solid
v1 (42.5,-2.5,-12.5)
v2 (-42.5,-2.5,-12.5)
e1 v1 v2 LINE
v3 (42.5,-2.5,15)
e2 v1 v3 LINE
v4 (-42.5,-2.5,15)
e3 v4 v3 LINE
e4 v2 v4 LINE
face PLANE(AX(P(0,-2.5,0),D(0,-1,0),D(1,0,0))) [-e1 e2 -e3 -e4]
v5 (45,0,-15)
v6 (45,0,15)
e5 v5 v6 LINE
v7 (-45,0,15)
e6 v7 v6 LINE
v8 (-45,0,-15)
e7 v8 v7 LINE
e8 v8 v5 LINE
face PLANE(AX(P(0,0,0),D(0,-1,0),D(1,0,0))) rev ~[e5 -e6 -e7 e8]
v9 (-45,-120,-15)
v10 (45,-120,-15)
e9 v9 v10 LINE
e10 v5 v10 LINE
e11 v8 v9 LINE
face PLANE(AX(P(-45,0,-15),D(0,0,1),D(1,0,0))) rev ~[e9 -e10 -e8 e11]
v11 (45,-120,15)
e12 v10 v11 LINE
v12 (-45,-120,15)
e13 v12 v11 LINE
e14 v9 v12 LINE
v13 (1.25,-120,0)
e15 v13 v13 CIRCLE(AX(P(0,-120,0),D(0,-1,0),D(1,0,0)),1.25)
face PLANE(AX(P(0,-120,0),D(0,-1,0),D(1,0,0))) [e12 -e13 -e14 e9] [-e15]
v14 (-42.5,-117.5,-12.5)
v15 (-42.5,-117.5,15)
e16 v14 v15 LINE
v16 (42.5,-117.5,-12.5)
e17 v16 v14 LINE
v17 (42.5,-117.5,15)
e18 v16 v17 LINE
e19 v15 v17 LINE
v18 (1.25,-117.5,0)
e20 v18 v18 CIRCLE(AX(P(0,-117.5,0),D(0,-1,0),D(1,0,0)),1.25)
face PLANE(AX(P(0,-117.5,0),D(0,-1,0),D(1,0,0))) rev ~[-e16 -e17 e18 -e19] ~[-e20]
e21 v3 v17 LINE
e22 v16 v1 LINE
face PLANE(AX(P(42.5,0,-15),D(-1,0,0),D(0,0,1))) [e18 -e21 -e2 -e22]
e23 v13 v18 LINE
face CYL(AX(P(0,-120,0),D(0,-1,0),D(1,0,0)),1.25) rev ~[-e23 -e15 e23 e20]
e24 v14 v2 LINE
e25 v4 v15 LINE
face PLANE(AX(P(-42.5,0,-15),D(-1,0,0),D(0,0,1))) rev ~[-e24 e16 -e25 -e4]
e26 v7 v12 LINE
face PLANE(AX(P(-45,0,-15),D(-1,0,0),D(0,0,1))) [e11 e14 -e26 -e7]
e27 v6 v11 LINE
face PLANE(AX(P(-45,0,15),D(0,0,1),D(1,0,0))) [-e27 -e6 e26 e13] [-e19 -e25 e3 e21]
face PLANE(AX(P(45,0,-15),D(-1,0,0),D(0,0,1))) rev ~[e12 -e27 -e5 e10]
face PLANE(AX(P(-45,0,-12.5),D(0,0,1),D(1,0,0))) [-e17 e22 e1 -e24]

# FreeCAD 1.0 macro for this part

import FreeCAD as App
import Part
import Sketcher
from FreeCAD import Vector


def faces_at(feature, points):
    """Names of the faces that lie closest to the given points."""
    faces = feature.Shape.Faces
    near = lambda p: min(range(len(faces)), key=lambda i: faces[i].distToShape(Part.Vertex(*p))[0])
    return sorted({f"Face{near(p) + 1}" for p in points})


def add_polygon(sketch, points):
    """Adds a closed chain of lines whose ends are joined by coincident constraints."""
    first, n = sketch.GeometryCount, len(points)
    for a, b in zip(points, points[1:] + points[:1]):
        sketch.addGeometry(Part.LineSegment(App.Vector(*a, 0), App.Vector(*b, 0)), False)
    for i in range(n):
        sketch.addConstraint(Sketcher.Constraint("Coincident", first + i, 2, first + (i + 1) % n, 1))

doc = App.newDocument("Part")
body = doc.addObject("PartDesign::Body", "Body")

# Sketch on XZ plane
sketch1 = body.newObject("Sketcher::SketchObject", "Sketch")
sketch1.AttachmentSupport = (doc.getObject("XZ_Plane"), [""])
sketch1.MapMode = "FlatFace"
add_polygon(sketch1, [(-45, 15), (-45, -15), (45, -15), (45, 15)])  # lines 0-3
sketch1.addConstraint(Sketcher.Constraint("Vertical", 0))
sketch1.addConstraint(Sketcher.Constraint("Horizontal", 1))
sketch1.addConstraint(Sketcher.Constraint("Vertical", 2))
sketch1.addConstraint(Sketcher.Constraint("Horizontal", 3))
sketch1.addConstraint(Sketcher.Constraint("Symmetric", 0, 2, 2, 2, -1, 1))
sketch1.addConstraint(Sketcher.Constraint("DistanceX", 1, 1, 1, 2, 90.0))
sketch1.addConstraint(Sketcher.Constraint("DistanceY", 0, 2, 0, 1, 30.0))
pad1 = body.newObject("PartDesign::Pad", "Pad")
pad1.Profile = sketch1
pad1.Length = 120
doc.recompute()

thickness = body.newObject("PartDesign::Thickness", "Thickness")
thickness.Base = (pad1, faces_at(pad1, [(0, -60, 15)]))
thickness.Value = 2.5
thickness.Reversed = True
thickness.Join = "Arc"

# Sketch on XZ plane
sketch2 = body.newObject("Sketcher::SketchObject", "Sketch001")
sketch2.AttachmentSupport = (doc.getObject("XZ_Plane"), [""])
sketch2.MapMode = "FlatFace"
sketch2.AttachmentOffset = App.Placement(Vector(0, 0, 120), App.Rotation())
sketch2.addGeometry(Part.Circle(Vector(0, 0, 0), Vector(0, 0, 1), 1.2), False)
sketch2.addConstraint(Sketcher.Constraint("Coincident", 0, 3, -1, 1))
sketch2.addConstraint(Sketcher.Constraint("Diameter", 0, 2.5))
pocket1 = body.newObject("PartDesign::Pocket", "Pocket")
pocket1.Profile = sketch2
pocket1.Length = 25

doc.recompute()
